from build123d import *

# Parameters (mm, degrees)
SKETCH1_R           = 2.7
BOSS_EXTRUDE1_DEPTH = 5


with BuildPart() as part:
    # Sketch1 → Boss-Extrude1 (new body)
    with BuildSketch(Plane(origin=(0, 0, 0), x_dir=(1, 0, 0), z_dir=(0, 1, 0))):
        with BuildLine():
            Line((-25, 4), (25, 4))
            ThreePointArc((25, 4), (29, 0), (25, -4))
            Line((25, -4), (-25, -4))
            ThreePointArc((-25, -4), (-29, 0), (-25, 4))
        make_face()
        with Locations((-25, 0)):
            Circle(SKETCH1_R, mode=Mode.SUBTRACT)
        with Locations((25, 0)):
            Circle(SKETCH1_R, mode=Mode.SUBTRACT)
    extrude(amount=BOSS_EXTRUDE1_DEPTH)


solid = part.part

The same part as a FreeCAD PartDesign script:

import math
import FreeCAD as App
import Part
import Sketcher

doc = App.newDocument("Part")
body = doc.addObject("PartDesign::Body", "Body")

# Sketch on XZ plane
sketch1 = body.newObject("Sketcher::SketchObject", "Sketch")
sketch1.AttachmentSupport = (doc.getObject("XZ_Plane"), [""])
sketch1.MapMode = "FlatFace"
sketch1.addGeometry([
    Part.LineSegment(App.Vector(25, -4, 0), App.Vector(-25, -4, 0)),  # 0
    Part.ArcOfCircle(Part.Circle(App.Vector(-25, 0, 0), App.Vector(0, 0, 1), 4), math.radians(90), math.radians(270)),  # 1
    Part.LineSegment(App.Vector(-25, 4, 0), App.Vector(25, 4, 0)),  # 2
    Part.ArcOfCircle(Part.Circle(App.Vector(25, 0, 0), App.Vector(0, 0, 1), 4), math.radians(-90), math.radians(90)),  # 3
    Part.Circle(App.Vector(25, 0, 0), App.Vector(0, 0, 1), 2.7),  # 4
    Part.Circle(App.Vector(-25, 0, 0), App.Vector(0, 0, 1), 2.7),  # 5
], False)
sketch1.addConstraint([
    Sketcher.Constraint("Tangent", 0, 2, 1, 2),
    Sketcher.Constraint("Tangent", 1, 1, 2, 1),
    Sketcher.Constraint("Tangent", 2, 2, 3, 2),
    Sketcher.Constraint("Tangent", 3, 1, 0, 1),
    Sketcher.Constraint("Horizontal", 0),
    Sketcher.Constraint("Horizontal", 2),
    Sketcher.Constraint("Coincident", 4, 3, 3, 3),
    Sketcher.Constraint("Coincident", 5, 3, 1, 3),
    Sketcher.Constraint("Equal", 4, 5),
    Sketcher.Constraint("Symmetric", 1, 3, 3, 3, -1, 1),
    Sketcher.Constraint("Radius", 1, 4.0),
    Sketcher.Constraint("Diameter", 4, 5.4),
    Sketcher.Constraint("DistanceX", 0, 2, 0, 1, 50.0),
])
pad1 = body.newObject("PartDesign::Pad", "Pad")
pad1.Profile = sketch1
pad1.Length = 5
pad1.Reversed = True

doc.recompute()
